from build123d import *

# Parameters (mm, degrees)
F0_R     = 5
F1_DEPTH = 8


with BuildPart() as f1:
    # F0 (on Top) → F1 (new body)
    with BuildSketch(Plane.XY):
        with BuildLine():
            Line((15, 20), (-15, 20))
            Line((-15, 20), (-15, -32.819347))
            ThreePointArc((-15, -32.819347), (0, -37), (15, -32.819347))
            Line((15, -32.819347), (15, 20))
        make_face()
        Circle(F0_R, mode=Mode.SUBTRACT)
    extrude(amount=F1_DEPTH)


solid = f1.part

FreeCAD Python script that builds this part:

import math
import FreeCAD as App
import Part
import Sketcher
Q = App.Units.Quantity

doc = App.newDocument("Part")
body = doc.addObject("PartDesign::Body", "Body")

# Sketch on XY plane
sketch1 = doc.addObject("Sketcher::SketchObject", "Sketch")
body.addObject(sketch1)
sketch1.AttachmentSupport = (doc.XY_Plane, [""])
sketch1.MapMode = "FlatFace"
sketch1.addGeometry([
    Part.LineSegment(App.Vector(15, 20, 0), App.Vector(-15, 20, 0)),  # 0
    Part.LineSegment(App.Vector(-15, 20, 0), App.Vector(-15, -32.819347, 0)),  # 1
    Part.ArcOfCircle(Part.Circle(App.Vector(0, -8.000002, 0), App.Vector(0, 0, 1), 28.999998), math.radians(-121.147392), math.radians(-58.852608)),  # 2
    Part.LineSegment(App.Vector(15, -32.819347, 0), App.Vector(15, 20, 0)),  # 3
    Part.Circle(App.Vector(0, 0, 0), App.Vector(0, 0, 1), 5),  # 4
], False)
sketch1.addConstraint([
    Sketcher.Constraint("Coincident", 0, 2, 1, 1),
    Sketcher.Constraint("Coincident", 1, 2, 2, 1),
    Sketcher.Constraint("Coincident", 2, 2, 3, 1),
    Sketcher.Constraint("Coincident", 3, 2, 0, 1),
    Sketcher.Constraint("Horizontal", 0),
    Sketcher.Constraint("Vertical", 1),
    Sketcher.Constraint("Vertical", 3),
    Sketcher.Constraint("Coincident", 4, 3, -1, 1),
    Sketcher.Constraint("Symmetric", 1, 2, 2, 2, -2),
    Sketcher.Constraint("Diameter", 4, Q("10 mm")),
    Sketcher.Constraint("Radius", 2, Q("28.999998 mm")),
    Sketcher.Constraint("DistanceX", 0, 2, 0, 1, Q("30 mm")),
    Sketcher.Constraint("DistanceY", 2, 3, -1, 1, Q("8.000002 mm")),
    Sketcher.Constraint("DistanceY", -1, 1, 0, 2, Q("20 mm")),
])
pad1 = doc.addObject("PartDesign::Pad", "Pad")
body.addObject(pad1)
pad1.Profile = sketch1
pad1.Length = 8

doc.recompute()
